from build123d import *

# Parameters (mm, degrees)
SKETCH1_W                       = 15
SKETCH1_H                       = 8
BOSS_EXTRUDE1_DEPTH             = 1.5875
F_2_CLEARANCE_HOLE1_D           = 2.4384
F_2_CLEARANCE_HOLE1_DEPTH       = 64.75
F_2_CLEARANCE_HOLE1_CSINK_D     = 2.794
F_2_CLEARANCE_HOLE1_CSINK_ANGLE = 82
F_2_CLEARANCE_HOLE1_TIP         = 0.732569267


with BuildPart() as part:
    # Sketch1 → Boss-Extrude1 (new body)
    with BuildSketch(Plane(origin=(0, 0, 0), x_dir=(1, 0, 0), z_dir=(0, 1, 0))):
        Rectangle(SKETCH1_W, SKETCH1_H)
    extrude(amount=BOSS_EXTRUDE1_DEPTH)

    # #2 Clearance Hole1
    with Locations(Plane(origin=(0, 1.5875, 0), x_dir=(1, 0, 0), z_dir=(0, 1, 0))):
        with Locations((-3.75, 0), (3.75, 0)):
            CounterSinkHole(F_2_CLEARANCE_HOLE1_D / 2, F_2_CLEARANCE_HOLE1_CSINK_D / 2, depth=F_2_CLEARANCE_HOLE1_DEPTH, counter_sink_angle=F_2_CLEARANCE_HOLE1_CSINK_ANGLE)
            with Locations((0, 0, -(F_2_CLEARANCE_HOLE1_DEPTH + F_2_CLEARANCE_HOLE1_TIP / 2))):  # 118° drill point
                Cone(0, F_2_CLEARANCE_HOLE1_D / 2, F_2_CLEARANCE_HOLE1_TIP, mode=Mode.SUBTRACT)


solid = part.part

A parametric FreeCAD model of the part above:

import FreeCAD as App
import Part
import Sketcher

doc = App.newDocument("Part")
body = doc.addObject("PartDesign::Body", "Body")

# Sketch on XZ plane
sketch1 = body.newObject("Sketcher::SketchObject", "Sketch")
sketch1.AttachmentSupport = (doc.getObject("XZ_Plane"), [""])
sketch1.MapMode = "FlatFace"
sketch1.addGeometry([
    Part.LineSegment(App.Vector(-8, -4, 0), App.Vector(-8, 4, 0)),
    Part.LineSegment(App.Vector(-8, 4, 0), App.Vector(8, 4, 0)),
    Part.LineSegment(App.Vector(8, 4, 0), App.Vector(8, -4, 0)),
    Part.LineSegment(App.Vector(8, -4, 0), App.Vector(-8, -4, 0)),
], False)
sketch1.addConstraint([
    Sketcher.Constraint("Coincident", 0, 2, 1, 1),
    Sketcher.Constraint("Coincident", 1, 2, 2, 1),
    Sketcher.Constraint("Coincident", 2, 2, 3, 1),
    Sketcher.Constraint("Coincident", 3, 2, 0, 1),
    Sketcher.Constraint("Vertical", 0),
    Sketcher.Constraint("Horizontal", 1),
    Sketcher.Constraint("Vertical", 2),
    Sketcher.Constraint("Horizontal", 3),
    Sketcher.Constraint("Symmetric", 0, 2, 2, 2, -1, 1),
    Sketcher.Constraint("DistanceX", 1, 1, 1, 2, 15.0),
    Sketcher.Constraint("DistanceY", 0, 1, 0, 2, 8.0),
])
pad1 = body.newObject("PartDesign::Pad", "Pad")
pad1.Profile = sketch1
pad1.Length = 1.5875
pad1.Reversed = True

# Sketch on XZ plane
sketch2 = body.newObject("Sketcher::SketchObject", "Sketch001")
sketch2.AttachmentSupport = (doc.getObject("XZ_Plane"), [""])
sketch2.MapMode = "FlatFace"
sketch2.AttachmentOffset = App.Placement(App.Vector(0, 0, -1.5875), App.Rotation())
sketch2.addGeometry([
    Part.Circle(App.Vector(-3.8, 0, 0), App.Vector(0, 0, 1), 1.2),
    Part.Circle(App.Vector(3.8, 0, 0), App.Vector(0, 0, 1), 1.2),
], False)
sketch2.addConstraint([
    Sketcher.Constraint("Equal", 0, 1),
    Sketcher.Constraint("Symmetric", 0, 3, 1, 3, -1, 1),
    Sketcher.Constraint("PointOnObject", 0, 3, -1),
    Sketcher.Constraint("Diameter", 0, 2.4384),
    Sketcher.Constraint("DistanceX", 0, 3, 1, 3, 7.5),
])
doc.recompute()
hole = body.newObject("PartDesign::Hole", "Hole")
hole.Profile = sketch2
hole.ThreadType = "None"
hole.Diameter = 2.4384
hole.DepthType = "Dimension"
hole.Depth = 64.75
hole.DrillPoint = "Angled"
hole.DrillPointAngle = 118
hole.HoleCutType = "Countersink"
hole.HoleCutDiameter = 2.794
hole.HoleCutCountersinkAngle = 82
hole.Reversed = True

doc.recompute()
